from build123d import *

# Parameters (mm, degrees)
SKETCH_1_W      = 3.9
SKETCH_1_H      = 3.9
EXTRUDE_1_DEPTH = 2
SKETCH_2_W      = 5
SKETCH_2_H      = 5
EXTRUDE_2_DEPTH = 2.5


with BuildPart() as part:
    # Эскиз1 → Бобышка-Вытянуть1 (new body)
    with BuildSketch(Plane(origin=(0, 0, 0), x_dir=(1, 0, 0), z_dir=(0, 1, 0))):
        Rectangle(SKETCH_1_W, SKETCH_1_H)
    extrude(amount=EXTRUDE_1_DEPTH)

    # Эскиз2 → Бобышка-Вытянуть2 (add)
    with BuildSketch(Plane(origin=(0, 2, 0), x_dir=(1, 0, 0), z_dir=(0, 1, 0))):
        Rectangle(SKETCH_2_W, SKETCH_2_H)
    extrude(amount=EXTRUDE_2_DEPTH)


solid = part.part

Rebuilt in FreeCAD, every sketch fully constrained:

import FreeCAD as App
import Part
import Sketcher
Q = App.Units.Quantity


def add_polygon(sketch, points):
    """Adds a closed chain of lines whose ends are joined by coincident constraints."""
    first, n = sketch.GeometryCount, len(points)
    for a, b in zip(points, points[1:] + points[:1]):
        sketch.addGeometry(Part.LineSegment(App.Vector(*a, 0), App.Vector(*b, 0)), False)
    for i in range(n):
        sketch.addConstraint(Sketcher.Constraint("Coincident", first + i, 2, first + (i + 1) % n, 1))

doc = App.newDocument("Part")
body = doc.addObject("PartDesign::Body", "Body")

sketch1 = doc.addObject("Sketcher::SketchObject", "Sketch")
body.addObject(sketch1)
sketch1.AttachmentSupport = (doc.XZ_Plane, [""])
sketch1.MapMode = "FlatFace"
add_polygon(sketch1, [(-1.9, -1.9), (-1.9, 1.9), (1.9, 1.9), (1.9, -1.9)])
sketch1.addConstraint(Sketcher.Constraint("Vertical", 0))
sketch1.addConstraint(Sketcher.Constraint("Horizontal", 1))
sketch1.addConstraint(Sketcher.Constraint("Vertical", 2))
sketch1.addConstraint(Sketcher.Constraint("Horizontal", 3))
sketch1.addConstraint(Sketcher.Constraint("Symmetric", 0, 2, 2, 2, -1, 1))
sketch1.addConstraint(Sketcher.Constraint("Equal", 3, 0))
sketch1.addConstraint(Sketcher.Constraint("DistanceX", 1, 1, 1, 2, Q("3.9 mm")))
pad1 = doc.addObject("PartDesign::Pad", "Pad")
body.addObject(pad1)
pad1.Profile = sketch1
pad1.Length = 2
pad1.Reversed = True

sketch2 = doc.addObject("Sketcher::SketchObject", "Sketch001")
body.addObject(sketch2)
sketch2.AttachmentSupport = (doc.XZ_Plane, [""])
sketch2.MapMode = "FlatFace"
sketch2.AttachmentOffset = App.Placement(App.Vector(0, 0, -2), App.Rotation())
add_polygon(sketch2, [(-2, -2), (-2, 2), (2, 2), (2, -2)])
sketch2.addConstraint(Sketcher.Constraint("Vertical", 0))
sketch2.addConstraint(Sketcher.Constraint("Horizontal", 1))
sketch2.addConstraint(Sketcher.Constraint("Vertical", 2))
sketch2.addConstraint(Sketcher.Constraint("Horizontal", 3))
sketch2.addConstraint(Sketcher.Constraint("Symmetric", 0, 2, 2, 2, -1, 1))
sketch2.addConstraint(Sketcher.Constraint("Equal", 3, 0))
sketch2.addConstraint(Sketcher.Constraint("DistanceX", 1, 1, 1, 2, Q("5 mm")))
pad2 = doc.addObject("PartDesign::Pad", "Pad001")
body.addObject(pad2)
pad2.Profile = sketch2
pad2.Length = 2.5
pad2.Reversed = True

doc.recompute()
